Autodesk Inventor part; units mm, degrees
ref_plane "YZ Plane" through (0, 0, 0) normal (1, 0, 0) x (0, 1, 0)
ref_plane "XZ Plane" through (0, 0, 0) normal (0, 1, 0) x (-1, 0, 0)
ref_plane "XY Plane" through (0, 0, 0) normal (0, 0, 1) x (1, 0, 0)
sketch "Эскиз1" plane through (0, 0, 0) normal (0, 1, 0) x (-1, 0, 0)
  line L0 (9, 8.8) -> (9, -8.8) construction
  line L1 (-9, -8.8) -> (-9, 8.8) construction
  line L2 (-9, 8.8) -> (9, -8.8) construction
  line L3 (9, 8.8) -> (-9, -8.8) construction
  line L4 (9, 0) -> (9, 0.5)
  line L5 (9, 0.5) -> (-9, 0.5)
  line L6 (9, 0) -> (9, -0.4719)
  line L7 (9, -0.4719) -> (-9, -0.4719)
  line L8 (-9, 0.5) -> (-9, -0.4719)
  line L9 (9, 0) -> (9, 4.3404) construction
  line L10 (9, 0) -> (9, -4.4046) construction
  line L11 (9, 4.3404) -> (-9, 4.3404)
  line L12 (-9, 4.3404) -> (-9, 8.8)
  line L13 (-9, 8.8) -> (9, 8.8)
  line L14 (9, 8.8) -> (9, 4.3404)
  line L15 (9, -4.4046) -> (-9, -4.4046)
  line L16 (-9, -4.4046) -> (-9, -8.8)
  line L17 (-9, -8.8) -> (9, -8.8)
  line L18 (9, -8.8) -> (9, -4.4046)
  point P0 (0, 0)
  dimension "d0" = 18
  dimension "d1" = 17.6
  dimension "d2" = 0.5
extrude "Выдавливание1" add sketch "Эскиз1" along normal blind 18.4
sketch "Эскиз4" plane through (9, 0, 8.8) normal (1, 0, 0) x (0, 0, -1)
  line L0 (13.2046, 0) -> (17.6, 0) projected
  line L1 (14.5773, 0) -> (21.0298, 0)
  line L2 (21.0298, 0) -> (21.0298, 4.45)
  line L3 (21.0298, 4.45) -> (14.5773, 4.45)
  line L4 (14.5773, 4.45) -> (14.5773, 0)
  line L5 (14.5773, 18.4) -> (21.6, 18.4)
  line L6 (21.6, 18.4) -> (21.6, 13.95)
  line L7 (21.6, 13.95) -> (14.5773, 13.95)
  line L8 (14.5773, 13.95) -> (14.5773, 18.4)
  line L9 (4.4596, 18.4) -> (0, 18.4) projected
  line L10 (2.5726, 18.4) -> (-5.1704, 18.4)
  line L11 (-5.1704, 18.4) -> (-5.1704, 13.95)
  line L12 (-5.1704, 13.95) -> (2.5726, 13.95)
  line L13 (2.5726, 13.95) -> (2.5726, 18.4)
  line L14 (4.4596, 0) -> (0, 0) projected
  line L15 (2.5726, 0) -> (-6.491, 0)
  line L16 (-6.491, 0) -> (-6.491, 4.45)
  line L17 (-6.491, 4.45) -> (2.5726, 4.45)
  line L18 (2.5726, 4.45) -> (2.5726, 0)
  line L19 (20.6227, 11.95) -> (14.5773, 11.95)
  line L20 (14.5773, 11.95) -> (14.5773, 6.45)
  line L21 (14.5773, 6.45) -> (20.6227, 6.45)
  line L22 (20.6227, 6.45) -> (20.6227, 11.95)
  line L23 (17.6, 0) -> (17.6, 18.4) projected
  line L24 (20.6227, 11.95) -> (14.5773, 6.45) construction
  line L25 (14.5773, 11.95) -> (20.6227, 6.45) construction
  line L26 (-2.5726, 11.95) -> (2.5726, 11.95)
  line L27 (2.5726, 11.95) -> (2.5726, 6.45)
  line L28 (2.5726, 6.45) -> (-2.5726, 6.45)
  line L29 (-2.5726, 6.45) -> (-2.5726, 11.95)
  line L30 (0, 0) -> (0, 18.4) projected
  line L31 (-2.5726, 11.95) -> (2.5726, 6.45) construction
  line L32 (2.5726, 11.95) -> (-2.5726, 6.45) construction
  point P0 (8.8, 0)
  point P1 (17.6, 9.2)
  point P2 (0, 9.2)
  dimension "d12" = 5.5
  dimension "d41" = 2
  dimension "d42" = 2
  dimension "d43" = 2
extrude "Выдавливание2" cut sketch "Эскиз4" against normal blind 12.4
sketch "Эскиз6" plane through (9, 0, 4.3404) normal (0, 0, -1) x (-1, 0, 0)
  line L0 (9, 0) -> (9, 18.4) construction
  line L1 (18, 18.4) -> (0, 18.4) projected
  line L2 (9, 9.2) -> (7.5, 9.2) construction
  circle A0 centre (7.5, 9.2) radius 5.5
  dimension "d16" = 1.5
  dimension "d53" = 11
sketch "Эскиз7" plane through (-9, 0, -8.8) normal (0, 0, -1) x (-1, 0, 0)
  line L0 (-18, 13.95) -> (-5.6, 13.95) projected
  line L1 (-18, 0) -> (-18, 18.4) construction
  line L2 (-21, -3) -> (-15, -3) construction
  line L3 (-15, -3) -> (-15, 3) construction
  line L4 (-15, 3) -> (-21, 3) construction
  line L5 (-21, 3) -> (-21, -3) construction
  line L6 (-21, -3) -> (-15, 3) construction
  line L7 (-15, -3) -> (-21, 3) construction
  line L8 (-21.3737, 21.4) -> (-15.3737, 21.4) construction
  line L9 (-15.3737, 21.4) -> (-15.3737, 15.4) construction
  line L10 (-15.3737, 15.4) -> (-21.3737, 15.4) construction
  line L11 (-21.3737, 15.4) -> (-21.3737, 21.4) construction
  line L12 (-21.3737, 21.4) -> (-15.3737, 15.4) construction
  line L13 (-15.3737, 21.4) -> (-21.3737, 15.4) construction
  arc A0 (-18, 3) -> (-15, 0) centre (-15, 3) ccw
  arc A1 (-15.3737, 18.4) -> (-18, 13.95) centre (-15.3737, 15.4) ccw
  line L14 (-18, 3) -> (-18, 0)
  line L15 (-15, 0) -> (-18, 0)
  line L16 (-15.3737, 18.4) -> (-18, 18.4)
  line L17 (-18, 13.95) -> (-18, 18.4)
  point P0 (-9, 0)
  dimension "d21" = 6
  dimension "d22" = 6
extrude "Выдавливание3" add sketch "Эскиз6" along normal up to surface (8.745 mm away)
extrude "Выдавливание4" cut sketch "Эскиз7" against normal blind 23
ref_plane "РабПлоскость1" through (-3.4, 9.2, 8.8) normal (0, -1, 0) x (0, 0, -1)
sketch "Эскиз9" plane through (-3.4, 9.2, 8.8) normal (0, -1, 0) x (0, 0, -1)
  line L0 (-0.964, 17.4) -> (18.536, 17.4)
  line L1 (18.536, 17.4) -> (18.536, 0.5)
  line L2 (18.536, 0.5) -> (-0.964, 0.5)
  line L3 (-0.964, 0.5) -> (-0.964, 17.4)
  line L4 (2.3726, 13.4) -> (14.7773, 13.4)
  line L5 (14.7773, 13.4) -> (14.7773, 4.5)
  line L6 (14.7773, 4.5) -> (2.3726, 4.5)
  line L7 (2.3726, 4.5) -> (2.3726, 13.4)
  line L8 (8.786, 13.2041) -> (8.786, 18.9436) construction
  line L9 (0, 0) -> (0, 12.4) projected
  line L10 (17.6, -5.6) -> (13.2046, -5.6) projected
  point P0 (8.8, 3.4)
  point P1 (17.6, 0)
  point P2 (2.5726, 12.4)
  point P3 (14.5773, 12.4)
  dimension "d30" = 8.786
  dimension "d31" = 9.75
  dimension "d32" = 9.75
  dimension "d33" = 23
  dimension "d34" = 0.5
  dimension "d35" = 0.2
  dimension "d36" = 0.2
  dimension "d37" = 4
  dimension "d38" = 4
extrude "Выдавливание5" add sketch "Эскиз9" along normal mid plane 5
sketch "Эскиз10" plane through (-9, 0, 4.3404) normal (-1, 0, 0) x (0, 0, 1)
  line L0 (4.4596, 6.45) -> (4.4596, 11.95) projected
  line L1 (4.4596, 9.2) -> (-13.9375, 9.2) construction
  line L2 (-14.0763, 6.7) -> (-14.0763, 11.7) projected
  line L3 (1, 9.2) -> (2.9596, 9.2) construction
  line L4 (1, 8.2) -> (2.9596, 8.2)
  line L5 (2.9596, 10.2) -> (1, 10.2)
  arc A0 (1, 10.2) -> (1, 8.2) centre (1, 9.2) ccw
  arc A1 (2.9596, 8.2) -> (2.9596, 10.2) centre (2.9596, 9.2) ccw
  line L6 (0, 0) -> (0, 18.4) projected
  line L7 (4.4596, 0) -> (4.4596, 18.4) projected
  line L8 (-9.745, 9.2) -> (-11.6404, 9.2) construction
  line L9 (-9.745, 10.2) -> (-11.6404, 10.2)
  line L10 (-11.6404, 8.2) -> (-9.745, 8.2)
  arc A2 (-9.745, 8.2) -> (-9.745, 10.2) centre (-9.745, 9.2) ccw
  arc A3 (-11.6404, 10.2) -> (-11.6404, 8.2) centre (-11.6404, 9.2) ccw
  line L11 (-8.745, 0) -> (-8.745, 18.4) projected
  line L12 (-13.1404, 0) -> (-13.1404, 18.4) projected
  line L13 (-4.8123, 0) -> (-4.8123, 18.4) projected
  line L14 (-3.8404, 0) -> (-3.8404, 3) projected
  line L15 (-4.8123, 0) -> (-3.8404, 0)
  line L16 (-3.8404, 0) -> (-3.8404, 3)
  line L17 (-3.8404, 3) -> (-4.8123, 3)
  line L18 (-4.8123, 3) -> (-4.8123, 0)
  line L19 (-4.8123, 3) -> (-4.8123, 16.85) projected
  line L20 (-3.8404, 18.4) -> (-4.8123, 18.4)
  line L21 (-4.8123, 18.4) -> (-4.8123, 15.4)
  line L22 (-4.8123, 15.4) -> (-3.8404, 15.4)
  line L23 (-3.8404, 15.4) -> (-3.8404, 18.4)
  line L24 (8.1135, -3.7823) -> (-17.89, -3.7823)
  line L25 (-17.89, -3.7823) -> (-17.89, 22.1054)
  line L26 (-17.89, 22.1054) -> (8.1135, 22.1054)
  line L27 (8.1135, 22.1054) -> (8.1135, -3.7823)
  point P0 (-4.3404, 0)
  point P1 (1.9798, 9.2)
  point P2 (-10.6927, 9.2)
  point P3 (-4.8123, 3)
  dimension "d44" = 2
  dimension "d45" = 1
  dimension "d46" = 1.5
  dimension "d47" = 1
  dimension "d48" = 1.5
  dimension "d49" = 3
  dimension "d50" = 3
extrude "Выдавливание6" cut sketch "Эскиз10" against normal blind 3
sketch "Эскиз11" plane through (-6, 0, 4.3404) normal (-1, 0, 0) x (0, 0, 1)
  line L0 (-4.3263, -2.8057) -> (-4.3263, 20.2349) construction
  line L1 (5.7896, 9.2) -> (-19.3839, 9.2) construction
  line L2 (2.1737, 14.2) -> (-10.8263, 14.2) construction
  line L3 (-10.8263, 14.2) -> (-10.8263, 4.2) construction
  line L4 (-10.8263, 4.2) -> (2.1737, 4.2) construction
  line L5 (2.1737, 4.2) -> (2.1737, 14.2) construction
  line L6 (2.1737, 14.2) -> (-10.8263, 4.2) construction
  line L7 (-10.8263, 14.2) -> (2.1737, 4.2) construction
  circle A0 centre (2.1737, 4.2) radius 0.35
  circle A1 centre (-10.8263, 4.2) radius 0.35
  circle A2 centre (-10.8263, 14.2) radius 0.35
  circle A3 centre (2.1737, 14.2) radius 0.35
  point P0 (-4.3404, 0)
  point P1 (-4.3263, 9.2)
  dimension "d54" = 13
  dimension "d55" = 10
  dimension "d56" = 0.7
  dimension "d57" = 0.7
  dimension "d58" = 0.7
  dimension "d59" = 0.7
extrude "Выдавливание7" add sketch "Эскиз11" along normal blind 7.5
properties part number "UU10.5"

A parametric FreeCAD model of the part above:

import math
import FreeCAD as App
import Part
import Sketcher

V = App.Vector
Q = App.Units.Quantity


def add_polygon(sketch, points):
    """Adds a closed chain of lines whose ends are joined by coincident constraints."""
    first, n = sketch.GeometryCount, len(points)
    for a, b in zip(points, points[1:] + points[:1]):
        sketch.addGeometry(Part.LineSegment(App.Vector(*a, 0), App.Vector(*b, 0)), False)
    for i in range(n):
        sketch.addConstraint(Sketcher.Constraint("Coincident", first + i, 2, first + (i + 1) % n, 1))

doc = App.newDocument("Part")
body = doc.addObject("PartDesign::Body", "Body")
body.AllowCompound = True

# Sketch on XZ plane
sketch1 = body.newObject("Sketcher::SketchObject", "Sketch")
sketch1.AttachmentSupport = (doc.getObject("XZ_Plane"), [""])
sketch1.MapMode = "FlatFace"
add_polygon(sketch1, [(-9, -0.5), (-9, 0.5), (9, 0.5), (9, -0.5)])  # lines 0-3
add_polygon(sketch1, [(9, 4.3), (-9, 4.3), (-9, 8.8), (9, 8.8)])  # lines 4-7
add_polygon(sketch1, [(-9, -8.8), (-9, -4.4), (9, -4.4), (9, -8.8)])  # lines 8-11
sketch1.addConstraint([
    Sketcher.Constraint("Vertical", 0),
    Sketcher.Constraint("Horizontal", 1),
    Sketcher.Constraint("Vertical", 2),
    Sketcher.Constraint("Horizontal", 3),
    Sketcher.Constraint("Horizontal", 4),
    Sketcher.Constraint("Vertical", 5),
    Sketcher.Constraint("Horizontal", 6),
    Sketcher.Constraint("Vertical", 7),
    Sketcher.Constraint("Vertical", 8),
    Sketcher.Constraint("Horizontal", 9),
    Sketcher.Constraint("Vertical", 10),
    Sketcher.Constraint("Horizontal", 11),
    Sketcher.Constraint("Symmetric", 5, 2, 10, 2, -1, 1),
    Sketcher.Constraint("Vertical", 3, 2, 4, 2),
    Sketcher.Constraint("Vertical", 2, 2, 6, 2),
    Sketcher.Constraint("Vertical", 5, 2, 8, 2),
    Sketcher.Constraint("Vertical", 7, 2, 9, 2),
    Sketcher.Constraint("DistanceX", 1, 1, 1, 2, Q("18 mm")),
    Sketcher.Constraint("DistanceY", -1, 1, 0, 2, Q("0.5 mm")),
    Sketcher.Constraint("DistanceY", 10, 2, 6, 2, Q("17.6 mm")),
    Sketcher.Constraint("DistanceY", 0, 1, 0, 2, Q("0.972 mm")),
    Sketcher.Constraint("DistanceY", 5, 1, 5, 2, Q("4.4596 mm")),
    Sketcher.Constraint("DistanceY", 8, 1, 8, 2, Q("4.3954 mm")),
])
pad1 = body.newObject("PartDesign::Pad", "Pad")
pad1.Profile = sketch1
pad1.Length = 18.4
pad1.Reversed = True

# Sketch on YZ plane
sketch2 = body.newObject("Sketcher::SketchObject", "Sketch001")
sketch2.AttachmentSupport = (doc.getObject("YZ_Plane"), [""])
sketch2.MapMode = "FlatFace"
sketch2.AttachmentOffset = App.Placement(V(0, 0, 9), App.Rotation())
add_polygon(sketch2, [(4.5, -5.8), (0, -5.8), (0, -12.2), (4.5, -12.2)])  # lines 0-3
add_polygon(sketch2, [(13.9, -5.8), (13.9, -12.8), (18.4, -12.8), (18.4, -5.8)])  # lines 4-7
add_polygon(sketch2, [(6.5, -5.8), (6.5, -11.8), (11.9, -11.8), (11.9, -5.8)])  # lines 8-11
add_polygon(sketch2, [(13.9, 6.2), (18.4, 6.2), (18.4, 14), (13.9, 14)])  # lines 12-15
add_polygon(sketch2, [(4.5, 6.2), (4.5, 15.3), (0, 15.3), (0, 6.2)])  # lines 16-19
add_polygon(sketch2, [(11.9, 6.2), (11.9, 11.4), (6.5, 11.4), (6.5, 6.2)])  # lines 20-23
sketch2.addConstraint([
    Sketcher.Constraint("Horizontal", 0),
    Sketcher.Constraint("Vertical", 1),
    Sketcher.Constraint("Horizontal", 2),
    Sketcher.Constraint("Vertical", 3),
    Sketcher.Constraint("Vertical", 4),
    Sketcher.Constraint("Horizontal", 5),
    Sketcher.Constraint("Vertical", 6),
    Sketcher.Constraint("Horizontal", 7),
    Sketcher.Constraint("Vertical", 8),
    Sketcher.Constraint("Horizontal", 9),
    Sketcher.Constraint("Vertical", 10),
    Sketcher.Constraint("Horizontal", 11),
    Sketcher.Constraint("Horizontal", 12),
    Sketcher.Constraint("Vertical", 13),
    Sketcher.Constraint("Horizontal", 14),
    Sketcher.Constraint("Vertical", 15),
    Sketcher.Constraint("Vertical", 16),
    Sketcher.Constraint("Horizontal", 17),
    Sketcher.Constraint("Vertical", 18),
    Sketcher.Constraint("Horizontal", 19),
    Sketcher.Constraint("Vertical", 20),
    Sketcher.Constraint("Horizontal", 21),
    Sketcher.Constraint("Vertical", 22),
    Sketcher.Constraint("Horizontal", 23),
    Sketcher.Constraint("PointOnObject", 0, 2, -2),
    Sketcher.Constraint("PointOnObject", 17, 2, -2),
    Sketcher.Constraint("Horizontal", 3, 2, 6, 2),
    Sketcher.Constraint("Horizontal", 7, 2, 10, 2),
    Sketcher.Constraint("Horizontal", 15, 2, 18, 2),
    Sketcher.Constraint("Horizontal", 19, 2, 22, 2),
    Sketcher.Constraint("Vertical", 6, 2, 12, 2),
    Sketcher.Constraint("Vertical", 7, 2, 14, 2),
    Sketcher.Constraint("Vertical", 3, 2, 16, 2),
    Sketcher.Constraint("Vertical", 10, 2, 20, 2),
    Sketcher.Constraint("Vertical", 11, 2, 21, 2),
    Sketcher.Constraint("Equal", 2, 5),
    Sketcher.Constraint("DistanceX", 9, 1, 9, 2, Q("5.5 mm")),
    Sketcher.Constraint("DistanceX", 2, 2, 8, 2, Q("2 mm")),
    Sketcher.Constraint("DistanceX", 9, 2, 4, 2, Q("2 mm")),
    Sketcher.Constraint("DistanceX", 0, 2, 0, 1, Q("4.45 mm")),
    Sketcher.Constraint("DistanceY", 4, 2, -1, 1, Q("12.8 mm")),
    Sketcher.Constraint("DistanceY", 13, 1, 13, 2, Q("7.743 mm")),
    Sketcher.Constraint("DistanceY", 1, 2, 1, 1, Q("6.4525 mm")),
    Sketcher.Constraint("DistanceY", 4, 2, 4, 1, Q("7.0227 mm")),
    Sketcher.Constraint("DistanceY", 8, 2, 8, 1, Q("6.0454 mm")),
    Sketcher.Constraint("DistanceY", 16, 1, 16, 2, Q("9.0636 mm")),
    Sketcher.Constraint("DistanceY", 20, 1, 20, 2, Q("5.1452 mm")),
    Sketcher.Constraint("DistanceY", -1, 1, 16, 2, Q("15.291 mm")),
])
pocket1 = body.newObject("PartDesign::Pocket", "Pocket")
pocket1.Profile = sketch2
pocket1.Length = 12.4

# Sketch on XY plane
sketch3 = body.newObject("Sketcher::SketchObject", "Sketch002")
sketch3.AttachmentSupport = (doc.getObject("XY_Plane"), [""])
sketch3.MapMode = "FlatFace"
sketch3.AttachmentOffset = App.Placement(V(0, 0, 4.3404), App.Rotation())
sketch3.addGeometry(Part.Circle(V(2, 9, 0), V(0, 0, 1), 6), False)
sketch3.addConstraint([
    Sketcher.Constraint("Diameter", 0, Q("11 mm")),
    Sketcher.Constraint("DistanceX", -1, 1, 0, 3, Q("1.5 mm")),
    Sketcher.Constraint("DistanceY", -1, 1, 0, 3, Q("9.2 mm")),
])
pad2 = body.newObject("PartDesign::Pad", "Pad001")
pad2.Profile = sketch3
pad2.Length = 8.745
pad2.Reversed = True

# Sketch on XY plane
sketch4 = body.newObject("Sketcher::SketchObject", "Sketch003")
sketch4.AttachmentSupport = (doc.getObject("XY_Plane"), [""])
sketch4.MapMode = "FlatFace"
sketch4.AttachmentOffset = App.Placement(V(0, 0, -8.8), App.Rotation())
sketch4.addGeometry([
    Part.ArcOfCircle(Part.Circle(V(6, 3, 0), V(0, 0, 1), 3), math.radians(-90), math.radians(0)),  # 0
    Part.LineSegment(V(9, 3, 0), V(9, 0, 0)),  # 1
    Part.LineSegment(V(9, 0, 0), V(6, 0, 0)),  # 2
    Part.LineSegment(V(9, 13.9, 0), V(9, 16.9, 0)),  # 3
    Part.ArcOfCircle(Part.Circle(V(6.4, 15.4, 0), V(0, 0, 1), 3), math.radians(-29), math.radians(29)),  # 4
    Part.ArcOfCircle(Part.Circle(V(6.4, 15.4, 0), V(0, 0, 1), 3), math.radians(29), math.radians(90)),  # 5
    Part.LineSegment(V(6.4, 18.4, 0), V(9, 18.4, 0)),  # 6
    Part.LineSegment(V(9, 18.4, 0), V(9, 16.9, 0)),  # 7
], False)
sketch4.addConstraint([
    Sketcher.Constraint("Tangent", 0, 2, 1, 1),
    Sketcher.Constraint("Coincident", 1, 2, 2, 1),
    Sketcher.Constraint("Tangent", 2, 2, 0, 1),
    Sketcher.Constraint("Coincident", 3, 1, 4, 1),
    Sketcher.Constraint("Coincident", 4, 2, 3, 2),
    Sketcher.Constraint("Tangent", 5, 2, 6, 1),
    Sketcher.Constraint("Coincident", 6, 2, 7, 1),
    Sketcher.Constraint("Coincident", 7, 2, 5, 1),
    Sketcher.Constraint("Vertical", 1),
    Sketcher.Constraint("Horizontal", 2),
    Sketcher.Constraint("Vertical", 3),
    Sketcher.Constraint("Horizontal", 6),
    Sketcher.Constraint("Vertical", 7),
    Sketcher.Constraint("Coincident", 5, 3, 4, 3),
    Sketcher.Constraint("Coincident", 7, 2, 4, 2),
    Sketcher.Constraint("Equal", 0, 4),
    Sketcher.Constraint("PointOnObject", 1, 2, -1),
    Sketcher.Constraint("Vertical", 1, 2, 3, 1),
    Sketcher.Constraint("Radius", 0, Q("3 mm")),
    Sketcher.Constraint("DistanceX", -1, 1, 0, 3, Q("6 mm")),
    Sketcher.Constraint("DistanceY", 3, 1, 3, 2, Q("2.9 mm")),
    Sketcher.Constraint("DistanceY", -1, 1, 4, 3, Q("15.4 mm")),
])
pocket2 = body.newObject("PartDesign::Pocket", "Pocket001")
pocket2.Profile = sketch4
pocket2.Length = 23
pocket2.Reversed = True

# Sketch on XZ plane
sketch5 = body.newObject("Sketcher::SketchObject", "Sketch004")
sketch5.AttachmentSupport = (doc.getObject("XZ_Plane"), [""])
sketch5.MapMode = "FlatFace"
sketch5.AttachmentOffset = App.Placement(V(0, 0, -9.2), App.Rotation())
add_polygon(sketch5, [(14, -10), (14, 10), (-3, 10), (-3, -10)])  # lines 0-3
add_polygon(sketch5, [(1, 6), (10, 6), (10, -6), (1, -6)])  # lines 4-7
sketch5.addConstraint([
    Sketcher.Constraint("Vertical", 0),
    Sketcher.Constraint("Horizontal", 1),
    Sketcher.Constraint("Vertical", 2),
    Sketcher.Constraint("Horizontal", 3),
    Sketcher.Constraint("Horizontal", 4),
    Sketcher.Constraint("Vertical", 5),
    Sketcher.Constraint("Horizontal", 6),
    Sketcher.Constraint("Vertical", 7),
    Sketcher.Constraint("DistanceX", 4, 2, 0, 2, Q("4 mm")),
    Sketcher.Constraint("DistanceX", 2, 2, 6, 2, Q("4 mm")),
    Sketcher.Constraint("DistanceX", 1, 2, 1, 1, Q("16.9 mm")),
    Sketcher.Constraint("DistanceY", 0, 1, 0, 2, Q("19.5 mm")),
    Sketcher.Constraint("DistanceX", -1, 1, 0, 2, Q("14 mm")),
    Sketcher.Constraint("DistanceY", 5, 2, 5, 1, Q("12.4047 mm")),
    Sketcher.Constraint("DistanceY", -1, 1, 0, 2, Q("9.764 mm")),
    Sketcher.Constraint("DistanceY", -1, 1, 4, 2, Q("6.4274 mm")),
])
pad3 = body.newObject("PartDesign::Pad", "Pad002")
pad3.Profile = sketch5
pad3.Length = 5
pad3.Midplane = True

# Sketch on YZ plane
sketch6 = body.newObject("Sketcher::SketchObject", "Sketch005")
sketch6.AttachmentSupport = (doc.getObject("YZ_Plane"), [""])
sketch6.MapMode = "FlatFace"
sketch6.AttachmentOffset = App.Placement(V(0, 0, -9), App.Rotation())
add_polygon(sketch6, [(-3.8, -13.5), (-3.8, 12.5), (22.1, 12.5), (22.1, -13.5)])  # lines 0-3
add_polygon(sketch6, [(0, 0.5), (0, -0.5), (3, -0.5), (3, 0.5)])  # lines 4-7
sketch6.addGeometry(Part.LineSegment(V(10.2, -7.3, 0), V(10.2, -5.4, 0)), False)  # 8
sketch6.addGeometry(Part.ArcOfCircle(Part.Circle(V(9.2, -5.4, 0), V(0, 0, 1), 1), math.radians(0), math.radians(180)), False)  # 9
sketch6.addGeometry(Part.LineSegment(V(8.2, -5.4, 0), V(8.2, -7.3, 0)), False)  # 10
sketch6.addGeometry(Part.ArcOfCircle(Part.Circle(V(9.2, -7.3, 0), V(0, 0, 1), 1), math.radians(180), math.radians(360)), False)  # 11
sketch6.addGeometry(Part.LineSegment(V(8.2, 7.3, 0), V(8.2, 5.3, 0)), False)  # 12
sketch6.addGeometry(Part.ArcOfCircle(Part.Circle(V(9.2, 5.3, 0), V(0, 0, 1), 1), math.radians(180), math.radians(360)), False)  # 13
sketch6.addGeometry(Part.LineSegment(V(10.2, 5.3, 0), V(10.2, 7.3, 0)), False)  # 14
sketch6.addGeometry(Part.ArcOfCircle(Part.Circle(V(9.2, 7.3, 0), V(0, 0, 1), 1), math.radians(0), math.radians(180)), False)  # 15
add_polygon(sketch6, [(15.4, 0.5), (15.4, -0.5), (18.4, -0.5), (18.4, 0.5)])  # lines 16-19
sketch6.addConstraint([
    Sketcher.Constraint("Tangent", 8, 2, 9, 1),
    Sketcher.Constraint("Tangent", 9, 2, 10, 1),
    Sketcher.Constraint("Tangent", 10, 2, 11, 1),
    Sketcher.Constraint("Tangent", 11, 2, 8, 1),
    Sketcher.Constraint("Tangent", 12, 2, 13, 1),
    Sketcher.Constraint("Tangent", 13, 2, 14, 1),
    Sketcher.Constraint("Tangent", 14, 2, 15, 1),
    Sketcher.Constraint("Tangent", 15, 2, 12, 1),
    Sketcher.Constraint("Vertical", 0),
    Sketcher.Constraint("Horizontal", 1),
    Sketcher.Constraint("Vertical", 2),
    Sketcher.Constraint("Horizontal", 3),
    Sketcher.Constraint("Vertical", 4),
    Sketcher.Constraint("Horizontal", 5),
    Sketcher.Constraint("Vertical", 6),
    Sketcher.Constraint("Horizontal", 7),
    Sketcher.Constraint("Vertical", 8),
    Sketcher.Constraint("Vertical", 10),
    Sketcher.Constraint("Vertical", 12),
    Sketcher.Constraint("Vertical", 14),
    Sketcher.Constraint("Vertical", 16),
    Sketcher.Constraint("Horizontal", 17),
    Sketcher.Constraint("Vertical", 18),
    Sketcher.Constraint("Horizontal", 19),
    Sketcher.Constraint("Equal", 11, 13),
    Sketcher.Constraint("Symmetric", 11, 3, 15, 3, -1),
    Sketcher.Constraint("PointOnObject", 4, 2, -2),
    Sketcher.Constraint("Horizontal", 5, 2, 16, 2),
    Sketcher.Constraint("Horizontal", 7, 2, 18, 2),
    Sketcher.Constraint("Equal", 7, 17),
    Sketcher.Constraint("Radius", 9, Q("1 mm")),
    Sketcher.Constraint("DistanceX", 5, 1, 5, 2, Q("3 mm")),
    Sketcher.Constraint("DistanceX", -1, 1, 9, 3, Q("9.2 mm")),
    Sketcher.Constraint("DistanceY", 11, 3, -1, 1, Q("7.3 mm")),
    Sketcher.Constraint("DistanceY", -1, 1, 6, 2, Q("0.5 mm")),
    Sketcher.Constraint("DistanceX", -1, 1, 16, 2, Q("15.4 mm")),
    Sketcher.Constraint("DistanceY", 4, 2, 4, 1, Q("0.972 mm")),
    Sketcher.Constraint("DistanceY", 2, 2, 13, 3, Q("18.89 mm")),
    Sketcher.Constraint("DistanceX", 1, 1, 1, 2, Q("25.8877 mm")),
    Sketcher.Constraint("DistanceY", 0, 1, 0, 2, Q("26.0035 mm")),
    Sketcher.Constraint("DistanceY", 8, 1, 8, 2, Q("1.8954 mm")),
    Sketcher.Constraint("DistanceY", 12, 2, 12, 1, Q("1.9596 mm")),
    Sketcher.Constraint("DistanceX", 0, 2, -1, 1, Q("3.7823 mm")),
])
pocket3 = body.newObject("PartDesign::Pocket", "Pocket002")
pocket3.Profile = sketch6
pocket3.Length = 3
pocket3.Reversed = True

# Sketch on YZ plane
sketch7 = body.newObject("Sketcher::SketchObject", "Sketch006")
sketch7.AttachmentSupport = (doc.getObject("YZ_Plane"), [""])
sketch7.MapMode = "FlatFace"
sketch7.AttachmentOffset = App.Placement(V(0, 0, -6), App.Rotation())
sketch7.addGeometry([
    Part.Circle(V(4.2, 6.51, 0), V(0, 0, 1), 0.35),
    Part.Circle(V(4.2, -6.49, 0), V(0, 0, 1), 0.35),
    Part.Circle(V(14.2, -6.49, 0), V(0, 0, 1), 0.35),
    Part.Circle(V(14.2, 6.51, 0), V(0, 0, 1), 0.35),
], False)
sketch7.addConstraint([
    Sketcher.Constraint("Equal", 0, 1),
    Sketcher.Constraint("Equal", 1, 2),
    Sketcher.Constraint("Equal", 2, 3),
    Sketcher.Constraint("Horizontal", 1, 3, 2, 3),
    Sketcher.Constraint("Horizontal", 0, 3, 3, 3),
    Sketcher.Constraint("Vertical", 0, 3, 1, 3),
    Sketcher.Constraint("Vertical", 2, 3, 3, 3),
    Sketcher.Constraint("Diameter", 0, Q("0.7 mm")),
    Sketcher.Constraint("DistanceY", 1, 3, 0, 3, Q("13 mm")),
    Sketcher.Constraint("DistanceX", 1, 3, 2, 3, Q("10 mm")),
    Sketcher.Constraint("DistanceX", -1, 1, 0, 3, Q("4.2 mm")),
    Sketcher.Constraint("DistanceY", -1, 1, 0, 3, Q("6.514 mm")),
])
pad4 = body.newObject("PartDesign::Pad", "Pad003")
pad4.Profile = sketch7
pad4.Length = 7.5
pad4.Reversed = True

doc.recompute()
